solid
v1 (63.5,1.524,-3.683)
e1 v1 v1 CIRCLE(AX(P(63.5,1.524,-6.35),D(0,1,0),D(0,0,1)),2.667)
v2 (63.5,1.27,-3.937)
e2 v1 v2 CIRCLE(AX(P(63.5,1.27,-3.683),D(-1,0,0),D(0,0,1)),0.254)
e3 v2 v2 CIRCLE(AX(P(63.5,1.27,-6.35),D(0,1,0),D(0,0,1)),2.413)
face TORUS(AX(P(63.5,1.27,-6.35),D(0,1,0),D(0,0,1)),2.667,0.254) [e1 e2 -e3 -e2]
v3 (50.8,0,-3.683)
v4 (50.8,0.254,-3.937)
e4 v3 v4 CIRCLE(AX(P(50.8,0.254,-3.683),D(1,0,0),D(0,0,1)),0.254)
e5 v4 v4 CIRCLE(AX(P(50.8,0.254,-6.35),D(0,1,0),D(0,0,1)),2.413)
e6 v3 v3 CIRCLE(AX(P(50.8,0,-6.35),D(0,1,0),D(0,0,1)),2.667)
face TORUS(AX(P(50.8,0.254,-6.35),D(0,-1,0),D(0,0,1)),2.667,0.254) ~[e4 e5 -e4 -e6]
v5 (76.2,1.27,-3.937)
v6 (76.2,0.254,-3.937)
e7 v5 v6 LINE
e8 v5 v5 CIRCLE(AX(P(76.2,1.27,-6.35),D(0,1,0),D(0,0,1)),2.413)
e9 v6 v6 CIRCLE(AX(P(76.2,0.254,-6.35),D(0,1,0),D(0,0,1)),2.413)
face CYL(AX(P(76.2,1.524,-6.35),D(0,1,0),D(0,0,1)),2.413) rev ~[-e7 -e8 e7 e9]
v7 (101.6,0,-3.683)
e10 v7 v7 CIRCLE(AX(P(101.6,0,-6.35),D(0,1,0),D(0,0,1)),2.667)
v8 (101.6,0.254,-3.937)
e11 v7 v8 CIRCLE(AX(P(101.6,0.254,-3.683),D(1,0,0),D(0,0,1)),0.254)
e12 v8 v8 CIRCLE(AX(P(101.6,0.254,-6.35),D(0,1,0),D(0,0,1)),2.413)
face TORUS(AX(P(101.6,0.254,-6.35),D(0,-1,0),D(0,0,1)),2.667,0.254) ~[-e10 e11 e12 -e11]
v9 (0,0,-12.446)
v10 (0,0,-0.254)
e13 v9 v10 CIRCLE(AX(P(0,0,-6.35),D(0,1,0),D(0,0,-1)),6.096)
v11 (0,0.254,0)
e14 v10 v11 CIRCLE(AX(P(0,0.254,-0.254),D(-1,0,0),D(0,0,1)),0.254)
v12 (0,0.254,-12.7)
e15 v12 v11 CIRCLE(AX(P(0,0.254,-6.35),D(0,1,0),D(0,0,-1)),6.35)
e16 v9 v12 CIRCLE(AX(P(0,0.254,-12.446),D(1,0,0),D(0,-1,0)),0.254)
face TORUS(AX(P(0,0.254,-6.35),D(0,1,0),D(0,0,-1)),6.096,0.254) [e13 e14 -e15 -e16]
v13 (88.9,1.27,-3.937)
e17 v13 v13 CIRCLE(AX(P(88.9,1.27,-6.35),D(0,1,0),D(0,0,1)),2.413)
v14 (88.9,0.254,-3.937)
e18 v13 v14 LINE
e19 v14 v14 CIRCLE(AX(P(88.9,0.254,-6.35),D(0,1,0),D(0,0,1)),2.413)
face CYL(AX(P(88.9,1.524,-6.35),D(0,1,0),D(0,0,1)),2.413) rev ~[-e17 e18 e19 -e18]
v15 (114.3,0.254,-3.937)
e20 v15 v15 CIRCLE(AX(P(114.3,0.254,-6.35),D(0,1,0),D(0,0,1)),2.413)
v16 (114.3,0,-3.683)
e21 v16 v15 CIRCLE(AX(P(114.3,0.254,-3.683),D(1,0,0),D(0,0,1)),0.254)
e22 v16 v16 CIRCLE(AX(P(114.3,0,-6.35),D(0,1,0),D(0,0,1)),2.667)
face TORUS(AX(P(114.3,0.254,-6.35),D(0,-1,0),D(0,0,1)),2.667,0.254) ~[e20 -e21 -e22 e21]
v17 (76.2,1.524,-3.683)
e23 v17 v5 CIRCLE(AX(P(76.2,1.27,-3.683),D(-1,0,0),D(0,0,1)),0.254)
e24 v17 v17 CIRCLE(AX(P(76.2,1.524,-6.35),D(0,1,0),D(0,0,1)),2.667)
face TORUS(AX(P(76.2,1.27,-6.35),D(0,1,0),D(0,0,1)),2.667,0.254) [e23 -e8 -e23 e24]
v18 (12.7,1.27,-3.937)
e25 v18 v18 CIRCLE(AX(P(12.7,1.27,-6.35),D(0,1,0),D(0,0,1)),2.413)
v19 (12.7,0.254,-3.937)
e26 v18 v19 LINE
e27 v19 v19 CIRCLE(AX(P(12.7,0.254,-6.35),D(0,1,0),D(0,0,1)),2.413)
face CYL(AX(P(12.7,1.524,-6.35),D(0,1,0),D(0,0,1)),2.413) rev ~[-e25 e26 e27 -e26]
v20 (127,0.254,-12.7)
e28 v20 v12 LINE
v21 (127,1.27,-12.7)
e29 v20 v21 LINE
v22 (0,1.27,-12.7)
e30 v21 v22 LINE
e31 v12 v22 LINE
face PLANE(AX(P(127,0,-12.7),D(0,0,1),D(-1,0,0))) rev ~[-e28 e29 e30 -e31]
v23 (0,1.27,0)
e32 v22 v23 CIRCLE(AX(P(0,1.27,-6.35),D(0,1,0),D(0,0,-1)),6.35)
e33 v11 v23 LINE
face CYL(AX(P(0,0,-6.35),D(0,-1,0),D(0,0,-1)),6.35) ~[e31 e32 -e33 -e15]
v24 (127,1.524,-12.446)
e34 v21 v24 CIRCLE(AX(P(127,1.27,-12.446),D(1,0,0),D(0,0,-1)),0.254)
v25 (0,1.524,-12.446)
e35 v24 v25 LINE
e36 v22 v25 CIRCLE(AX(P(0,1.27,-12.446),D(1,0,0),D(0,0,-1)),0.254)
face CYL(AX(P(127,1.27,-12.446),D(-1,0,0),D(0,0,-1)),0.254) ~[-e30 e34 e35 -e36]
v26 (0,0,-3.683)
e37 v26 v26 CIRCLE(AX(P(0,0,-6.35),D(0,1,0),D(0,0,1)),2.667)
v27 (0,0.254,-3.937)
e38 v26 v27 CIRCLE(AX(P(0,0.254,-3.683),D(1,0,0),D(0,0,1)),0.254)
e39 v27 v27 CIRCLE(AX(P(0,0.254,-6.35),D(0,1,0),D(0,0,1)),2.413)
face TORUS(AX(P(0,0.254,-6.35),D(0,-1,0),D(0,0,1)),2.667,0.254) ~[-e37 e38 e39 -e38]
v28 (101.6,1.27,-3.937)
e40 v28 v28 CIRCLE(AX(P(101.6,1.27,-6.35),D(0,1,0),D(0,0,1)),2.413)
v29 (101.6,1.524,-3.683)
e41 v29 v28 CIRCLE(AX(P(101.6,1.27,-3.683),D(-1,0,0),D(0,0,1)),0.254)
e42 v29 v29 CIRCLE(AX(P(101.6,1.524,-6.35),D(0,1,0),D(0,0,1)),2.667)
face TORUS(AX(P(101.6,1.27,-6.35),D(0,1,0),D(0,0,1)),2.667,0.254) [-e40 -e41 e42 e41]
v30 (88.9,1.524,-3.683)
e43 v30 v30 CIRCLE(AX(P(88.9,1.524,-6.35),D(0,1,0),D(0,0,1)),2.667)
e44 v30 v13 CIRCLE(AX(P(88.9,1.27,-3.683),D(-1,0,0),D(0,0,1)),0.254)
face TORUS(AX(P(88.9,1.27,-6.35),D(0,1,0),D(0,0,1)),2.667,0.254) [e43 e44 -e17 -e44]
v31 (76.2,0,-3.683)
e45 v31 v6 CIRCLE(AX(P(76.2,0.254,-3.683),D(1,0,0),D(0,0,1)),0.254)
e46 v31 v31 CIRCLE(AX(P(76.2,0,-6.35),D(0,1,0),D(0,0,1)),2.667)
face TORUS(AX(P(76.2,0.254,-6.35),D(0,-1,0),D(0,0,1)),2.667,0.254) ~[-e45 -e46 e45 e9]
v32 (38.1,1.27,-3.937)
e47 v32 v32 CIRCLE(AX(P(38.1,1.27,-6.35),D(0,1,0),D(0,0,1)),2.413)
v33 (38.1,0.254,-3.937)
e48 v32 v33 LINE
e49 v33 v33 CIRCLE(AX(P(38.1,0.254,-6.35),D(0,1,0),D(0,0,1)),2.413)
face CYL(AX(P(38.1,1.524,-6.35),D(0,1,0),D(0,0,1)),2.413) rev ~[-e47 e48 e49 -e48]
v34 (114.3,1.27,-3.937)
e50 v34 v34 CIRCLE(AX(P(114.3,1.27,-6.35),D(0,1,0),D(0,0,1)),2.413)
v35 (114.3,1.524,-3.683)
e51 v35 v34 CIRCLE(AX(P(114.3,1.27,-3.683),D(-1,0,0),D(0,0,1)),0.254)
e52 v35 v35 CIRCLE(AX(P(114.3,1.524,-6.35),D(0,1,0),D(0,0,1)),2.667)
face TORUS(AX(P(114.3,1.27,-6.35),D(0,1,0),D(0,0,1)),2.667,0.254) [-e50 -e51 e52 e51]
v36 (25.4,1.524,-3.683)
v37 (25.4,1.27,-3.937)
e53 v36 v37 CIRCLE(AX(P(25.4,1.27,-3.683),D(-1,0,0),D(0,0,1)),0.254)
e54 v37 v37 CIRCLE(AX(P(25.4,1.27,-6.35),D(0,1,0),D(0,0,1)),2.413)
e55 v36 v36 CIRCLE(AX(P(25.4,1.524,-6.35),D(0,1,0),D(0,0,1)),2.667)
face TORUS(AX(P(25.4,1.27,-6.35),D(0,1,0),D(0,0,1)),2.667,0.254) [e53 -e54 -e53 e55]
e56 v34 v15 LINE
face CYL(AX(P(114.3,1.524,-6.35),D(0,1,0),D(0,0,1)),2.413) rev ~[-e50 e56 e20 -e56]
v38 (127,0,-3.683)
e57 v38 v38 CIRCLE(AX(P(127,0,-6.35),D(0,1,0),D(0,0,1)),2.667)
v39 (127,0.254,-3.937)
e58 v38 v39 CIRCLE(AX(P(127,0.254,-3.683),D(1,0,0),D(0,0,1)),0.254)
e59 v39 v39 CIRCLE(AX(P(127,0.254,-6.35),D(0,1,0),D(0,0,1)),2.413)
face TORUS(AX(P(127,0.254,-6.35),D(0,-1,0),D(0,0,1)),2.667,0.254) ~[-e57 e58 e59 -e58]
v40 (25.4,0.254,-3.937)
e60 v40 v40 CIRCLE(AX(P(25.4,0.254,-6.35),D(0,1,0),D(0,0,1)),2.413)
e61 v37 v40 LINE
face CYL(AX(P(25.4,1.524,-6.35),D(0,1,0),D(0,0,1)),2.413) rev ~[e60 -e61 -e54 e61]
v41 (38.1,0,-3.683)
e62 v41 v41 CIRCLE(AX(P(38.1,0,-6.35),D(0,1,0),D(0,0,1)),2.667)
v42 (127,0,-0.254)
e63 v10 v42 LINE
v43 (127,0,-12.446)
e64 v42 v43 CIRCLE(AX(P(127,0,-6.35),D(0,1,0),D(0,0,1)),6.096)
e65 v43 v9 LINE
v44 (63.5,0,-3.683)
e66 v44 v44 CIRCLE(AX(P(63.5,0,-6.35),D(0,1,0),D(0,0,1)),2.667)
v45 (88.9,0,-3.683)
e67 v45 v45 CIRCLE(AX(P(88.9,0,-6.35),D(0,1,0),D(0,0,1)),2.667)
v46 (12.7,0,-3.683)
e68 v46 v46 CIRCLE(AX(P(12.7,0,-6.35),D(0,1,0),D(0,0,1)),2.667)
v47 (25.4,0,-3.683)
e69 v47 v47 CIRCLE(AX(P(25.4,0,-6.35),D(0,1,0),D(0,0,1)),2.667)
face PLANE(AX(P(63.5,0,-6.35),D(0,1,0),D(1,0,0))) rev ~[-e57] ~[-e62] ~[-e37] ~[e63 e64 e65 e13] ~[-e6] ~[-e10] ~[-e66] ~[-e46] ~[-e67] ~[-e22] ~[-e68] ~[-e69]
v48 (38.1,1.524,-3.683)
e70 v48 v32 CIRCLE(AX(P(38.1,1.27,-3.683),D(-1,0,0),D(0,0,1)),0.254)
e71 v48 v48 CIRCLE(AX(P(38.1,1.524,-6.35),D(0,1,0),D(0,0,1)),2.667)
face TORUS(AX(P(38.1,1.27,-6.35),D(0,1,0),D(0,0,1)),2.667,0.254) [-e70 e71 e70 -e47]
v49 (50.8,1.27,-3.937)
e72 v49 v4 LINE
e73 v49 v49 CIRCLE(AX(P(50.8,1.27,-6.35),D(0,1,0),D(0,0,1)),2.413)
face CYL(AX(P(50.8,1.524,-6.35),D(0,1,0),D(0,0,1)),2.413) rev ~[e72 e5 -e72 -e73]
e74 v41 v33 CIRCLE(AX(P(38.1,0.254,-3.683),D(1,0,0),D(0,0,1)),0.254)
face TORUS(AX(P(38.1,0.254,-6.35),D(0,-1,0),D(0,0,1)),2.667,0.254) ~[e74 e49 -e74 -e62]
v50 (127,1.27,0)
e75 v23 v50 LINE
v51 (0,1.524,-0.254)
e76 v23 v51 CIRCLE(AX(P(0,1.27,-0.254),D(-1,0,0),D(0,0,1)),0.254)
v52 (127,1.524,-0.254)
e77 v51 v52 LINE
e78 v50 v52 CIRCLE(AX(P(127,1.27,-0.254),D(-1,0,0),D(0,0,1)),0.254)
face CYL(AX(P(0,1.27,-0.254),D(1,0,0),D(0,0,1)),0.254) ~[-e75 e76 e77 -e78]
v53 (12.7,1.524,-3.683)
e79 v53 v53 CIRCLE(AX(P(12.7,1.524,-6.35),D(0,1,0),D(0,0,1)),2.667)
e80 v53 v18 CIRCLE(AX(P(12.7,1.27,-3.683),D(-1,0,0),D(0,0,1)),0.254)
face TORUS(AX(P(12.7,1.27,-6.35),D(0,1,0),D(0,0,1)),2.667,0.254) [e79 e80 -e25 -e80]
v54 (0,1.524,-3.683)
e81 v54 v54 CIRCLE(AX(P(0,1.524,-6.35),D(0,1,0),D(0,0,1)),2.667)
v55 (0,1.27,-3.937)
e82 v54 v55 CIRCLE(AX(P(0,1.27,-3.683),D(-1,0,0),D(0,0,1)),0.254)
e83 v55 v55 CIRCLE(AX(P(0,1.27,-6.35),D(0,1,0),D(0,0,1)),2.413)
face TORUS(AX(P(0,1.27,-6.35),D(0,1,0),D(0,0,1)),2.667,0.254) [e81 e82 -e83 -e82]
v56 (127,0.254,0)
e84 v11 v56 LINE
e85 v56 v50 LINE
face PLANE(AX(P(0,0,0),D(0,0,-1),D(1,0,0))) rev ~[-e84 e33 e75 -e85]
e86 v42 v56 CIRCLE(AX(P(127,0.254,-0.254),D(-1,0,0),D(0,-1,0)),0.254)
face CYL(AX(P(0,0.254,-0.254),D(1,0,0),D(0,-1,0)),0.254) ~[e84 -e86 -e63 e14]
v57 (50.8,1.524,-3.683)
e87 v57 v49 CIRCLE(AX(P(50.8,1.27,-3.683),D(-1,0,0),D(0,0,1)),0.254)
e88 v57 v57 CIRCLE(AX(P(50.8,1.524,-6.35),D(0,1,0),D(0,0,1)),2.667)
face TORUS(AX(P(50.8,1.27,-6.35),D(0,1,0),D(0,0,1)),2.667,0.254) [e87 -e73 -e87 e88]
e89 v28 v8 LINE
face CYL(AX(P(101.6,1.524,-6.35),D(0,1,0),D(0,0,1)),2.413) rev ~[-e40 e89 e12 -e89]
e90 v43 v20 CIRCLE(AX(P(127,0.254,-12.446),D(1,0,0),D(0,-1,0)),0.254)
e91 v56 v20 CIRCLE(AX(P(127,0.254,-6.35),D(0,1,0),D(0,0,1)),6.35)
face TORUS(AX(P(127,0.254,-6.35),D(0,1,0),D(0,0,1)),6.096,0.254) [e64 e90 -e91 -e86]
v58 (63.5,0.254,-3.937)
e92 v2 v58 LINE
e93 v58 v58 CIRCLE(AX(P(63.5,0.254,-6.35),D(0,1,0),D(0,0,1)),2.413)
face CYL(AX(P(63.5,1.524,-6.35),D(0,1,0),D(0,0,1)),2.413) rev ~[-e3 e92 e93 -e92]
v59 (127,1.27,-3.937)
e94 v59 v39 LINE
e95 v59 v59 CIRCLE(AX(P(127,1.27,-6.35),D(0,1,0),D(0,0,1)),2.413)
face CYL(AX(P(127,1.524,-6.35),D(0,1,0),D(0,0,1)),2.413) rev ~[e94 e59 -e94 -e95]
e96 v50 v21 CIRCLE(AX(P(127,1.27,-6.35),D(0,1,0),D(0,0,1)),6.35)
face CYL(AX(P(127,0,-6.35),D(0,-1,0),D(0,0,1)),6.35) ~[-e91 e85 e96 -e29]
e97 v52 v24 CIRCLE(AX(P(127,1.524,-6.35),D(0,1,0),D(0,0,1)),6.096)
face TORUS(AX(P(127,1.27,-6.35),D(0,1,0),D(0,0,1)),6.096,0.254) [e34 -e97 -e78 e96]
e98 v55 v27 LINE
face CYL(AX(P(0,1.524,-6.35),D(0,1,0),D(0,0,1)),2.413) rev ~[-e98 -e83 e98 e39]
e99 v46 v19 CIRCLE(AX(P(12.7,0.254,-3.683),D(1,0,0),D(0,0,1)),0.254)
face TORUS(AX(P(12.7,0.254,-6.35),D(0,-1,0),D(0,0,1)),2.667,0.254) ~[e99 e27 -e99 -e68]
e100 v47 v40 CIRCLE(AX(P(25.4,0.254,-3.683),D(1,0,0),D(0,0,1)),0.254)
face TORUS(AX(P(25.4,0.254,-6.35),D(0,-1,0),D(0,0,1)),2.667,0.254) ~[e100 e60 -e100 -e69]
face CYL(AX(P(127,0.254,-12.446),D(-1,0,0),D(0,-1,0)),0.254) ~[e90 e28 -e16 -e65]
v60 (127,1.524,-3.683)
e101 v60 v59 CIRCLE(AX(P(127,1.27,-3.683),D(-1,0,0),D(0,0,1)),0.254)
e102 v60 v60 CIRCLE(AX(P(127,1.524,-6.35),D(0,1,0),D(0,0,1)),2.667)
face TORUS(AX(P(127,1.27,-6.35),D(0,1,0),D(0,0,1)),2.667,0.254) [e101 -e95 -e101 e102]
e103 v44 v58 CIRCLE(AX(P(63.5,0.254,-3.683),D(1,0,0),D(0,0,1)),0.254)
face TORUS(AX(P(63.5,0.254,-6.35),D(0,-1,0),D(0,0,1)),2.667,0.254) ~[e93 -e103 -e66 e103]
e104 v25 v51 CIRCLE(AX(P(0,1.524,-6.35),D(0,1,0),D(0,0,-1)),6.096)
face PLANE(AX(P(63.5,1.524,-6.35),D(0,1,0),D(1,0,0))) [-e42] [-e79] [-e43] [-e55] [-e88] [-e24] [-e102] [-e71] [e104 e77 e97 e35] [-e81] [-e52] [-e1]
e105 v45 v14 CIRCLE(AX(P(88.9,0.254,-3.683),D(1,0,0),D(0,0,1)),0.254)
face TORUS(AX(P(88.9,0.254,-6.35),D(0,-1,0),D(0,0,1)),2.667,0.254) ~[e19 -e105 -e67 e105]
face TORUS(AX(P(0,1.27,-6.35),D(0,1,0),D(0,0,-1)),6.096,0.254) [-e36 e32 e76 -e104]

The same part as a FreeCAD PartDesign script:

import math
import FreeCAD as App
import Part
import Sketcher

V = App.Vector
Q = App.Units.Quantity


def edges_at(feature, points):
    """Names of the edges that pass closest to the given points."""
    edges = feature.Shape.Edges
    near = lambda p: min(range(len(edges)), key=lambda i: edges[i].distToShape(Part.Vertex(*p))[0])
    return sorted({f"Edge{near(p) + 1}" for p in points})

doc = App.newDocument("Part")
body = doc.addObject("PartDesign::Body", "Body")

# Sketch on XZ plane
sketch1 = doc.addObject("Sketcher::SketchObject", "Sketch")
body.addObject(sketch1)
sketch1.AttachmentSupport = (doc.XZ_Plane, [""])
sketch1.MapMode = "FlatFace"
sketch1.addGeometry(Part.LineSegment(V(0, 0, 0), V(127, 0, 0)), False)
sketch1.addGeometry(Part.ArcOfCircle(Part.Circle(V(127, -6, 0), V(0, 0, 1), 6), math.radians(-90), math.radians(90)), False)
sketch1.addGeometry(Part.LineSegment(V(127, -13, 0), V(0, -13, 0)), False)
sketch1.addGeometry(Part.ArcOfCircle(Part.Circle(V(0, -6, 0), V(0, 0, 1), 6), math.radians(90), math.radians(270)), False)
sketch1.addConstraint(Sketcher.Constraint("Tangent", 0, 2, 1, 2))
sketch1.addConstraint(Sketcher.Constraint("Tangent", 1, 1, 2, 1))
sketch1.addConstraint(Sketcher.Constraint("Tangent", 2, 2, 3, 2))
sketch1.addConstraint(Sketcher.Constraint("Tangent", 3, 1, 0, 1))
sketch1.addConstraint(Sketcher.Constraint("Horizontal", 0))
sketch1.addConstraint(Sketcher.Constraint("Horizontal", 2))
sketch1.addConstraint(Sketcher.Constraint("Coincident", 3, 1, -1, 1))
sketch1.addConstraint(Sketcher.Constraint("DistanceX", 0, 1, 0, 2, Q("5 in")))
sketch1.addConstraint(Sketcher.Constraint("Radius", 1, Q("0.25 in")))
pad1 = doc.addObject("PartDesign::Pad", "Pad")
body.addObject(pad1)
pad1.Profile = sketch1
pad1.Length = Q("0.06 in")
pad1.Reversed = True

# Sketch on XZ plane
sketch2 = doc.addObject("Sketcher::SketchObject", "Sketch001")
body.addObject(sketch2)
sketch2.AttachmentSupport = (doc.XZ_Plane, [""])
sketch2.MapMode = "FlatFace"
sketch2.AttachmentOffset = App.Placement(V(0, 0, -0.06 * 25.4), App.Rotation())
sketch2.addGeometry(Part.Circle(V(0, -6.3, 0), V(0, 0, 1), 2.4), False)
sketch2.addConstraint(Sketcher.Constraint("PointOnObject", 0, 3, -2))
sketch2.addConstraint(Sketcher.Constraint("Diameter", 0, Q("0.19 in")))
sketch2.addConstraint(Sketcher.Constraint("DistanceY", 0, 3, -1, 1, Q("0.25 in")))
pocket1 = doc.addObject("PartDesign::Pocket", "Pocket")
body.addObject(pocket1)
pocket1.Profile = sketch2
pocket1.Type = "ThroughAll"
pocket1.Reversed = True
doc.recompute()

linearpattern = doc.addObject("PartDesign::LinearPattern", "LinearPattern")
body.addObject(linearpattern)
linearpattern.Originals = [pocket1]
linearpattern.Direction = (doc.X_Axis, [""])
linearpattern.Mode = "offset"
linearpattern.Offset = Q("0.5 in")
linearpattern.Occurrences = 11
body.Tip = linearpattern
doc.recompute()

fillet = doc.addObject("PartDesign::Fillet", "Fillet")
body.addObject(fillet)
fillet.Base = (linearpattern, edges_at(linearpattern, [
    (133.35, 1.524, -6.35),
    (63.5, 1.524, -12.7),
    (0, 0, -8.763),
    (0, 1.524, -8.763),
    (12.7, 0, -8.763),
    (12.7, 1.524, -8.763),
    (25.4, 0, -8.763),
    (25.4, 1.524, -8.763),
    (38.1, 0, -8.763),
    (38.1, 1.524, -8.763),
    (50.8, 0, -8.763),
    (50.8, 1.524, -8.763),
    (63.5, 0, -8.763),
    (63.5, 1.524, -8.763),
    (76.2, 0, -8.763),
    (76.2, 1.524, -8.763),
    (-6.35, 1.524, -6.35),
    (63.5, 0, -12.7),
    (88.9, 0, -8.763),
    (88.9, 1.524, -8.763),
    (133.35, 0, -6.35),
    (101.6, 0, -8.763),
    (101.6, 1.524, -8.763),
    (63.5, 0, 0),
    (114.3, 0, -8.763),
    (114.3, 1.524, -8.763),
    (127, 0, -8.763),
    (-6.35, 0, -6.35),
    (127, 1.524, -8.763),
    (63.5, 1.524, 0),
]))
fillet.Radius = Q("0.01 in")

doc.recompute()
